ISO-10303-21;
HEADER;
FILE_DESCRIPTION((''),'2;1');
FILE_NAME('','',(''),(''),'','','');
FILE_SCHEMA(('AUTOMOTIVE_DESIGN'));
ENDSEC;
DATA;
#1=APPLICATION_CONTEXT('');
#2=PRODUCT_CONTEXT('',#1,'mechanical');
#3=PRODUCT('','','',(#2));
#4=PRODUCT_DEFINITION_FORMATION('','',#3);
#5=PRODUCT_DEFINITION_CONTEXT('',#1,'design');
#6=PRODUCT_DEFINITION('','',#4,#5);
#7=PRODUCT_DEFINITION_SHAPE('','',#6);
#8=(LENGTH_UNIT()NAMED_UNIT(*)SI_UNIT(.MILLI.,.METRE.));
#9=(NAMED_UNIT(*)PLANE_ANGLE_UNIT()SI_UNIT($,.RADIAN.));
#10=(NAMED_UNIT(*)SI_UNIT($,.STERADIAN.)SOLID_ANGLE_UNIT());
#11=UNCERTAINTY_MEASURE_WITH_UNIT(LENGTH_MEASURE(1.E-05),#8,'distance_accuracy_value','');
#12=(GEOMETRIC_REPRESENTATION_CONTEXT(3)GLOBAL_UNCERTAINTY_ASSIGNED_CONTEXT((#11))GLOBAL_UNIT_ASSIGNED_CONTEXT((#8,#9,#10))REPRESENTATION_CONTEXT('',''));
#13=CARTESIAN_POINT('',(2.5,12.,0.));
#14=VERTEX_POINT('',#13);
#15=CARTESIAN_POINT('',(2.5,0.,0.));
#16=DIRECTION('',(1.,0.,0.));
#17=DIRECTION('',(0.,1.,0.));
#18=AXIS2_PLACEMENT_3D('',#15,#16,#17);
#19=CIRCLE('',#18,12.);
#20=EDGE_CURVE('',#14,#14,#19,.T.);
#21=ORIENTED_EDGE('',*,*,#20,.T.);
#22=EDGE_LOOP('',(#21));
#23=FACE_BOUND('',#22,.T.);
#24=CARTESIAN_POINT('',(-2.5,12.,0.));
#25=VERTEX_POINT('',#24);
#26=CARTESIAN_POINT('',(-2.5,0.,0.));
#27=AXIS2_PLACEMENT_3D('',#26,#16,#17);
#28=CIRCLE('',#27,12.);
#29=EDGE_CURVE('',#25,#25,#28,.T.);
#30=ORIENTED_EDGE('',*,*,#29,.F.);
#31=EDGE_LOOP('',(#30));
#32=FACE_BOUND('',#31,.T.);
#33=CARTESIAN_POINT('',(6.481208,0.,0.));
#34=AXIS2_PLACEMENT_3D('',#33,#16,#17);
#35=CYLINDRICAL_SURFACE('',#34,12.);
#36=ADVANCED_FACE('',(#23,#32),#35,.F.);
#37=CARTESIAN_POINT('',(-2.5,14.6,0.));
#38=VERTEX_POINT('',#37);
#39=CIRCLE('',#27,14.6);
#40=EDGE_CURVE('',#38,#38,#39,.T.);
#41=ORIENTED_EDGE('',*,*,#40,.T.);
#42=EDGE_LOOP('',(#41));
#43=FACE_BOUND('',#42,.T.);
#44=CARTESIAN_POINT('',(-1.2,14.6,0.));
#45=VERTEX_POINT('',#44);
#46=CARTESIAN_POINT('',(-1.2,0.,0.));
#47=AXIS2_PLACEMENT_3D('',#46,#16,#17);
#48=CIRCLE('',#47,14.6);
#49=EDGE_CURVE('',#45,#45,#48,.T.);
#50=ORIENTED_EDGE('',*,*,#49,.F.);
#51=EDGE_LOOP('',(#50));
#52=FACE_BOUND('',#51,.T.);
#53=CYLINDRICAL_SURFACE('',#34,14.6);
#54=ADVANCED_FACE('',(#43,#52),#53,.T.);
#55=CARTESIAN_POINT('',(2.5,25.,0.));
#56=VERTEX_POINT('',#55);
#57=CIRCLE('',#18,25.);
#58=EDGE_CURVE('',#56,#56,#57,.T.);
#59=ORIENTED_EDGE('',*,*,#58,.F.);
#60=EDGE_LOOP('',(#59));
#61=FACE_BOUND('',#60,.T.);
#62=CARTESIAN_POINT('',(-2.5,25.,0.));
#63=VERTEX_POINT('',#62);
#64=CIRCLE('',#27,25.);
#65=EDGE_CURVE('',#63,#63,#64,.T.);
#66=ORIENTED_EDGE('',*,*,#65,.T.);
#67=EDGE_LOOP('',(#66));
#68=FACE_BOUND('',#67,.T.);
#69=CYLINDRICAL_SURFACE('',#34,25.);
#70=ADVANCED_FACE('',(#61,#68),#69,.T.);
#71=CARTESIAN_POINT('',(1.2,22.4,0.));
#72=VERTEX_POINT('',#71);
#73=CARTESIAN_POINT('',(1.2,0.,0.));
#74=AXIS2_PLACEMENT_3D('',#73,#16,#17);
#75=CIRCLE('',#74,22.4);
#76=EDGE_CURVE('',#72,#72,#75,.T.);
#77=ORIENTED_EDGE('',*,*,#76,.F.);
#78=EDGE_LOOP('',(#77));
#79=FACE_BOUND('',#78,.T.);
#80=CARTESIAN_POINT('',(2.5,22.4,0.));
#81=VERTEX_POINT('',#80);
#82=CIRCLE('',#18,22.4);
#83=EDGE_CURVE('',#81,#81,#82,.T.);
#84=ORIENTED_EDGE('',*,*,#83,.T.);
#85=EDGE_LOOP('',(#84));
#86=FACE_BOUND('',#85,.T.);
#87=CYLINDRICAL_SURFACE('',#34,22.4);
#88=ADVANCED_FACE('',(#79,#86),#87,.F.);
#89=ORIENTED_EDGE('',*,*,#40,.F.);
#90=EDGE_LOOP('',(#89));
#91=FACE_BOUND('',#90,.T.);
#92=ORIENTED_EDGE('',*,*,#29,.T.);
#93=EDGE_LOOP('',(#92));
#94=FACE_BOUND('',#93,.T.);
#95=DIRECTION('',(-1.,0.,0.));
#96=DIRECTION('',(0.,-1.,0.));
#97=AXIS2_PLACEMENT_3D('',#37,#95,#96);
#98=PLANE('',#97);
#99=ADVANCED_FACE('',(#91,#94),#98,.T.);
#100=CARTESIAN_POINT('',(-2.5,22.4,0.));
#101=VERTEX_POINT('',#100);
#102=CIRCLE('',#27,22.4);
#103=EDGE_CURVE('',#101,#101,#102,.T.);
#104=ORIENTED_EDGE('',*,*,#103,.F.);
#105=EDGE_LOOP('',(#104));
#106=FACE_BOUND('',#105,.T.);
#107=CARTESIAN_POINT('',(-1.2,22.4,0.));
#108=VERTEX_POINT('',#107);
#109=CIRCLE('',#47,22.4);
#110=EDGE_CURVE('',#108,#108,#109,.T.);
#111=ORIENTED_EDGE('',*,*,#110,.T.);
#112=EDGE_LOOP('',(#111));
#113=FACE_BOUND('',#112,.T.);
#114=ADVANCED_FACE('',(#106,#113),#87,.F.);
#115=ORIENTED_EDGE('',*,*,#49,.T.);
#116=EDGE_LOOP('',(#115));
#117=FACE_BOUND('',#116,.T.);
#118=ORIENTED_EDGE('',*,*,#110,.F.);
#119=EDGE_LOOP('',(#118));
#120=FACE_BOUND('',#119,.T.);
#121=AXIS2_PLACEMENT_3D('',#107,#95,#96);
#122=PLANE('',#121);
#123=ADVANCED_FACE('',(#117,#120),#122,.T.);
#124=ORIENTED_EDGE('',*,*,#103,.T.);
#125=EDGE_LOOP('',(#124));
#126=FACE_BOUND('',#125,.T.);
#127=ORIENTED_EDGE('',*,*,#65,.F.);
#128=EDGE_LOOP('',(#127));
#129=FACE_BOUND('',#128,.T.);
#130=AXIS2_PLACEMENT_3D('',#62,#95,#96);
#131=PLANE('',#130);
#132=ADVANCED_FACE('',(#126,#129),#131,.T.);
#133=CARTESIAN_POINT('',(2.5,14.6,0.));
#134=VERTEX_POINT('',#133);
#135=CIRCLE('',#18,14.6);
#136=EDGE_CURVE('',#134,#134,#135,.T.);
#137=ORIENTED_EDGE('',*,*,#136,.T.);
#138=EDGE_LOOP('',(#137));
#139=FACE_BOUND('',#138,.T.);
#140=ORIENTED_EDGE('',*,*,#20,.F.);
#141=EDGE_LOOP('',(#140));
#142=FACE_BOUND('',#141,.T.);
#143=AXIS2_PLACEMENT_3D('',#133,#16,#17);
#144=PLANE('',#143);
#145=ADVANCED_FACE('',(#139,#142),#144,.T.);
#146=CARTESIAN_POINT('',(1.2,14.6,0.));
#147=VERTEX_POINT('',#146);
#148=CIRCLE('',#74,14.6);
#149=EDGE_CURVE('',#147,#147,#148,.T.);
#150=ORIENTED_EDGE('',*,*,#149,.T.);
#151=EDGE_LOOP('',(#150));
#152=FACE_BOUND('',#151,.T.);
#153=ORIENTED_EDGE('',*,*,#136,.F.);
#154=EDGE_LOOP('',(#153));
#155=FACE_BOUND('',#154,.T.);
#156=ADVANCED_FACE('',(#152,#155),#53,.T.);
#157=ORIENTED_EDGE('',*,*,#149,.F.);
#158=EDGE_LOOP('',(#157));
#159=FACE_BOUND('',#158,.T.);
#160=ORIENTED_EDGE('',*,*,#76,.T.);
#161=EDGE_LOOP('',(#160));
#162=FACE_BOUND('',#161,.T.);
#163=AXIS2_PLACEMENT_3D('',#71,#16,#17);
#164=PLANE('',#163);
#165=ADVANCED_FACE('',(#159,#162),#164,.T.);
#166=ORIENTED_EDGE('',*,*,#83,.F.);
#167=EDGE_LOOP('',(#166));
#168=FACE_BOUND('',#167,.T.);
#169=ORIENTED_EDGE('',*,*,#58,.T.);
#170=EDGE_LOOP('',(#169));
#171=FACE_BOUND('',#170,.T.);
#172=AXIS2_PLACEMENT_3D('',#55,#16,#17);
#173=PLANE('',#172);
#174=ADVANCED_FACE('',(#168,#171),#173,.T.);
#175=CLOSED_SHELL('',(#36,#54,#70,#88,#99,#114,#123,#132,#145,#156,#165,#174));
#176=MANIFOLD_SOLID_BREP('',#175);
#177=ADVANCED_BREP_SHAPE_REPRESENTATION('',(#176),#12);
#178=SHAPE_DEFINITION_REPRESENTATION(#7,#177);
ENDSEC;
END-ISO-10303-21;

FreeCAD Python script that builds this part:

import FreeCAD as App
import Part
import Sketcher
from FreeCAD import Vector
Q = App.Units.Quantity

doc = App.newDocument("Part")
body = doc.addObject("PartDesign::Body", "Body")

# Sketch on XY plane
sketch1 = doc.addObject("Sketcher::SketchObject", "Sketch")
body.addObject(sketch1)
sketch1.AttachmentSupport = (doc.XY_Plane, [""])
sketch1.MapMode = "FlatFace"
sketch1.addGeometry([
    Part.LineSegment(Vector(2.5, 25, 0), Vector(-2.5, 25, 0)),  # 0
    Part.LineSegment(Vector(-2.5, 25, 0), Vector(-2.5, 22.4, 0)),  # 1
    Part.LineSegment(Vector(-2.5, 22.4, 0), Vector(-1.2, 22.4, 0)),  # 2
    Part.LineSegment(Vector(-1.2, 22.4, 0), Vector(-1.2, 14.6, 0)),  # 3
    Part.LineSegment(Vector(-1.2, 14.6, 0), Vector(-2.5, 14.6, 0)),  # 4
    Part.LineSegment(Vector(-2.5, 14.6, 0), Vector(-2.5, 12, 0)),  # 5
    Part.LineSegment(Vector(-2.5, 12, 0), Vector(2.5, 12, 0)),  # 6
    Part.LineSegment(Vector(2.5, 12, 0), Vector(2.5, 14.6, 0)),  # 7
    Part.LineSegment(Vector(2.5, 14.6, 0), Vector(1.2, 14.6, 0)),  # 8
    Part.LineSegment(Vector(1.2, 14.6, 0), Vector(1.2, 22.4, 0)),  # 9
    Part.LineSegment(Vector(1.2, 22.4, 0), Vector(2.5, 22.4, 0)),  # 10
    Part.LineSegment(Vector(2.5, 22.4, 0), Vector(2.5, 25, 0)),  # 11
], False)
sketch1.addConstraint([
    Sketcher.Constraint("Coincident", 0, 2, 1, 1),
    Sketcher.Constraint("Coincident", 1, 2, 2, 1),
    Sketcher.Constraint("Coincident", 2, 2, 3, 1),
    Sketcher.Constraint("Coincident", 3, 2, 4, 1),
    Sketcher.Constraint("Coincident", 4, 2, 5, 1),
    Sketcher.Constraint("Coincident", 5, 2, 6, 1),
    Sketcher.Constraint("Coincident", 6, 2, 7, 1),
    Sketcher.Constraint("Coincident", 7, 2, 8, 1),
    Sketcher.Constraint("Coincident", 8, 2, 9, 1),
    Sketcher.Constraint("Coincident", 9, 2, 10, 1),
    Sketcher.Constraint("Coincident", 10, 2, 11, 1),
    Sketcher.Constraint("Coincident", 11, 2, 0, 1),
    Sketcher.Constraint("Horizontal", 0),
    Sketcher.Constraint("Vertical", 1),
    Sketcher.Constraint("Horizontal", 2),
    Sketcher.Constraint("Vertical", 3),
    Sketcher.Constraint("Horizontal", 4),
    Sketcher.Constraint("Vertical", 5),
    Sketcher.Constraint("Horizontal", 6),
    Sketcher.Constraint("Vertical", 7),
    Sketcher.Constraint("Horizontal", 8),
    Sketcher.Constraint("Vertical", 9),
    Sketcher.Constraint("Horizontal", 10),
    Sketcher.Constraint("Vertical", 11),
    Sketcher.Constraint("Symmetric", 4, 2, 7, 2, -2),
    Sketcher.Constraint("Symmetric", 2, 2, 9, 2, -2),
    Sketcher.Constraint("Vertical", 1, 2, 4, 2),
    Sketcher.Constraint("Vertical", 7, 2, 10, 2),
    Sketcher.Constraint("Equal", 1, 5),
    Sketcher.Constraint("DistanceX", 0, 2, 0, 1, Q("5 mm")),
    Sketcher.Constraint("DistanceX", 2, 1, 2, 2, Q("1.3 mm")),
    Sketcher.Constraint("DistanceY", 1, 2, 1, 1, Q("2.6 mm")),
    Sketcher.Constraint("DistanceY", 3, 2, 3, 1, Q("7.8 mm")),
    Sketcher.Constraint("DistanceY", -1, 1, 0, 2, Q("25 mm")),
])
revolution = doc.addObject("PartDesign::Revolution", "Revolution")
body.addObject(revolution)
revolution.Profile = sketch1
revolution.ReferenceAxis = (sketch1, ["H_Axis"])
revolution.Angle = 360

doc.recompute()
